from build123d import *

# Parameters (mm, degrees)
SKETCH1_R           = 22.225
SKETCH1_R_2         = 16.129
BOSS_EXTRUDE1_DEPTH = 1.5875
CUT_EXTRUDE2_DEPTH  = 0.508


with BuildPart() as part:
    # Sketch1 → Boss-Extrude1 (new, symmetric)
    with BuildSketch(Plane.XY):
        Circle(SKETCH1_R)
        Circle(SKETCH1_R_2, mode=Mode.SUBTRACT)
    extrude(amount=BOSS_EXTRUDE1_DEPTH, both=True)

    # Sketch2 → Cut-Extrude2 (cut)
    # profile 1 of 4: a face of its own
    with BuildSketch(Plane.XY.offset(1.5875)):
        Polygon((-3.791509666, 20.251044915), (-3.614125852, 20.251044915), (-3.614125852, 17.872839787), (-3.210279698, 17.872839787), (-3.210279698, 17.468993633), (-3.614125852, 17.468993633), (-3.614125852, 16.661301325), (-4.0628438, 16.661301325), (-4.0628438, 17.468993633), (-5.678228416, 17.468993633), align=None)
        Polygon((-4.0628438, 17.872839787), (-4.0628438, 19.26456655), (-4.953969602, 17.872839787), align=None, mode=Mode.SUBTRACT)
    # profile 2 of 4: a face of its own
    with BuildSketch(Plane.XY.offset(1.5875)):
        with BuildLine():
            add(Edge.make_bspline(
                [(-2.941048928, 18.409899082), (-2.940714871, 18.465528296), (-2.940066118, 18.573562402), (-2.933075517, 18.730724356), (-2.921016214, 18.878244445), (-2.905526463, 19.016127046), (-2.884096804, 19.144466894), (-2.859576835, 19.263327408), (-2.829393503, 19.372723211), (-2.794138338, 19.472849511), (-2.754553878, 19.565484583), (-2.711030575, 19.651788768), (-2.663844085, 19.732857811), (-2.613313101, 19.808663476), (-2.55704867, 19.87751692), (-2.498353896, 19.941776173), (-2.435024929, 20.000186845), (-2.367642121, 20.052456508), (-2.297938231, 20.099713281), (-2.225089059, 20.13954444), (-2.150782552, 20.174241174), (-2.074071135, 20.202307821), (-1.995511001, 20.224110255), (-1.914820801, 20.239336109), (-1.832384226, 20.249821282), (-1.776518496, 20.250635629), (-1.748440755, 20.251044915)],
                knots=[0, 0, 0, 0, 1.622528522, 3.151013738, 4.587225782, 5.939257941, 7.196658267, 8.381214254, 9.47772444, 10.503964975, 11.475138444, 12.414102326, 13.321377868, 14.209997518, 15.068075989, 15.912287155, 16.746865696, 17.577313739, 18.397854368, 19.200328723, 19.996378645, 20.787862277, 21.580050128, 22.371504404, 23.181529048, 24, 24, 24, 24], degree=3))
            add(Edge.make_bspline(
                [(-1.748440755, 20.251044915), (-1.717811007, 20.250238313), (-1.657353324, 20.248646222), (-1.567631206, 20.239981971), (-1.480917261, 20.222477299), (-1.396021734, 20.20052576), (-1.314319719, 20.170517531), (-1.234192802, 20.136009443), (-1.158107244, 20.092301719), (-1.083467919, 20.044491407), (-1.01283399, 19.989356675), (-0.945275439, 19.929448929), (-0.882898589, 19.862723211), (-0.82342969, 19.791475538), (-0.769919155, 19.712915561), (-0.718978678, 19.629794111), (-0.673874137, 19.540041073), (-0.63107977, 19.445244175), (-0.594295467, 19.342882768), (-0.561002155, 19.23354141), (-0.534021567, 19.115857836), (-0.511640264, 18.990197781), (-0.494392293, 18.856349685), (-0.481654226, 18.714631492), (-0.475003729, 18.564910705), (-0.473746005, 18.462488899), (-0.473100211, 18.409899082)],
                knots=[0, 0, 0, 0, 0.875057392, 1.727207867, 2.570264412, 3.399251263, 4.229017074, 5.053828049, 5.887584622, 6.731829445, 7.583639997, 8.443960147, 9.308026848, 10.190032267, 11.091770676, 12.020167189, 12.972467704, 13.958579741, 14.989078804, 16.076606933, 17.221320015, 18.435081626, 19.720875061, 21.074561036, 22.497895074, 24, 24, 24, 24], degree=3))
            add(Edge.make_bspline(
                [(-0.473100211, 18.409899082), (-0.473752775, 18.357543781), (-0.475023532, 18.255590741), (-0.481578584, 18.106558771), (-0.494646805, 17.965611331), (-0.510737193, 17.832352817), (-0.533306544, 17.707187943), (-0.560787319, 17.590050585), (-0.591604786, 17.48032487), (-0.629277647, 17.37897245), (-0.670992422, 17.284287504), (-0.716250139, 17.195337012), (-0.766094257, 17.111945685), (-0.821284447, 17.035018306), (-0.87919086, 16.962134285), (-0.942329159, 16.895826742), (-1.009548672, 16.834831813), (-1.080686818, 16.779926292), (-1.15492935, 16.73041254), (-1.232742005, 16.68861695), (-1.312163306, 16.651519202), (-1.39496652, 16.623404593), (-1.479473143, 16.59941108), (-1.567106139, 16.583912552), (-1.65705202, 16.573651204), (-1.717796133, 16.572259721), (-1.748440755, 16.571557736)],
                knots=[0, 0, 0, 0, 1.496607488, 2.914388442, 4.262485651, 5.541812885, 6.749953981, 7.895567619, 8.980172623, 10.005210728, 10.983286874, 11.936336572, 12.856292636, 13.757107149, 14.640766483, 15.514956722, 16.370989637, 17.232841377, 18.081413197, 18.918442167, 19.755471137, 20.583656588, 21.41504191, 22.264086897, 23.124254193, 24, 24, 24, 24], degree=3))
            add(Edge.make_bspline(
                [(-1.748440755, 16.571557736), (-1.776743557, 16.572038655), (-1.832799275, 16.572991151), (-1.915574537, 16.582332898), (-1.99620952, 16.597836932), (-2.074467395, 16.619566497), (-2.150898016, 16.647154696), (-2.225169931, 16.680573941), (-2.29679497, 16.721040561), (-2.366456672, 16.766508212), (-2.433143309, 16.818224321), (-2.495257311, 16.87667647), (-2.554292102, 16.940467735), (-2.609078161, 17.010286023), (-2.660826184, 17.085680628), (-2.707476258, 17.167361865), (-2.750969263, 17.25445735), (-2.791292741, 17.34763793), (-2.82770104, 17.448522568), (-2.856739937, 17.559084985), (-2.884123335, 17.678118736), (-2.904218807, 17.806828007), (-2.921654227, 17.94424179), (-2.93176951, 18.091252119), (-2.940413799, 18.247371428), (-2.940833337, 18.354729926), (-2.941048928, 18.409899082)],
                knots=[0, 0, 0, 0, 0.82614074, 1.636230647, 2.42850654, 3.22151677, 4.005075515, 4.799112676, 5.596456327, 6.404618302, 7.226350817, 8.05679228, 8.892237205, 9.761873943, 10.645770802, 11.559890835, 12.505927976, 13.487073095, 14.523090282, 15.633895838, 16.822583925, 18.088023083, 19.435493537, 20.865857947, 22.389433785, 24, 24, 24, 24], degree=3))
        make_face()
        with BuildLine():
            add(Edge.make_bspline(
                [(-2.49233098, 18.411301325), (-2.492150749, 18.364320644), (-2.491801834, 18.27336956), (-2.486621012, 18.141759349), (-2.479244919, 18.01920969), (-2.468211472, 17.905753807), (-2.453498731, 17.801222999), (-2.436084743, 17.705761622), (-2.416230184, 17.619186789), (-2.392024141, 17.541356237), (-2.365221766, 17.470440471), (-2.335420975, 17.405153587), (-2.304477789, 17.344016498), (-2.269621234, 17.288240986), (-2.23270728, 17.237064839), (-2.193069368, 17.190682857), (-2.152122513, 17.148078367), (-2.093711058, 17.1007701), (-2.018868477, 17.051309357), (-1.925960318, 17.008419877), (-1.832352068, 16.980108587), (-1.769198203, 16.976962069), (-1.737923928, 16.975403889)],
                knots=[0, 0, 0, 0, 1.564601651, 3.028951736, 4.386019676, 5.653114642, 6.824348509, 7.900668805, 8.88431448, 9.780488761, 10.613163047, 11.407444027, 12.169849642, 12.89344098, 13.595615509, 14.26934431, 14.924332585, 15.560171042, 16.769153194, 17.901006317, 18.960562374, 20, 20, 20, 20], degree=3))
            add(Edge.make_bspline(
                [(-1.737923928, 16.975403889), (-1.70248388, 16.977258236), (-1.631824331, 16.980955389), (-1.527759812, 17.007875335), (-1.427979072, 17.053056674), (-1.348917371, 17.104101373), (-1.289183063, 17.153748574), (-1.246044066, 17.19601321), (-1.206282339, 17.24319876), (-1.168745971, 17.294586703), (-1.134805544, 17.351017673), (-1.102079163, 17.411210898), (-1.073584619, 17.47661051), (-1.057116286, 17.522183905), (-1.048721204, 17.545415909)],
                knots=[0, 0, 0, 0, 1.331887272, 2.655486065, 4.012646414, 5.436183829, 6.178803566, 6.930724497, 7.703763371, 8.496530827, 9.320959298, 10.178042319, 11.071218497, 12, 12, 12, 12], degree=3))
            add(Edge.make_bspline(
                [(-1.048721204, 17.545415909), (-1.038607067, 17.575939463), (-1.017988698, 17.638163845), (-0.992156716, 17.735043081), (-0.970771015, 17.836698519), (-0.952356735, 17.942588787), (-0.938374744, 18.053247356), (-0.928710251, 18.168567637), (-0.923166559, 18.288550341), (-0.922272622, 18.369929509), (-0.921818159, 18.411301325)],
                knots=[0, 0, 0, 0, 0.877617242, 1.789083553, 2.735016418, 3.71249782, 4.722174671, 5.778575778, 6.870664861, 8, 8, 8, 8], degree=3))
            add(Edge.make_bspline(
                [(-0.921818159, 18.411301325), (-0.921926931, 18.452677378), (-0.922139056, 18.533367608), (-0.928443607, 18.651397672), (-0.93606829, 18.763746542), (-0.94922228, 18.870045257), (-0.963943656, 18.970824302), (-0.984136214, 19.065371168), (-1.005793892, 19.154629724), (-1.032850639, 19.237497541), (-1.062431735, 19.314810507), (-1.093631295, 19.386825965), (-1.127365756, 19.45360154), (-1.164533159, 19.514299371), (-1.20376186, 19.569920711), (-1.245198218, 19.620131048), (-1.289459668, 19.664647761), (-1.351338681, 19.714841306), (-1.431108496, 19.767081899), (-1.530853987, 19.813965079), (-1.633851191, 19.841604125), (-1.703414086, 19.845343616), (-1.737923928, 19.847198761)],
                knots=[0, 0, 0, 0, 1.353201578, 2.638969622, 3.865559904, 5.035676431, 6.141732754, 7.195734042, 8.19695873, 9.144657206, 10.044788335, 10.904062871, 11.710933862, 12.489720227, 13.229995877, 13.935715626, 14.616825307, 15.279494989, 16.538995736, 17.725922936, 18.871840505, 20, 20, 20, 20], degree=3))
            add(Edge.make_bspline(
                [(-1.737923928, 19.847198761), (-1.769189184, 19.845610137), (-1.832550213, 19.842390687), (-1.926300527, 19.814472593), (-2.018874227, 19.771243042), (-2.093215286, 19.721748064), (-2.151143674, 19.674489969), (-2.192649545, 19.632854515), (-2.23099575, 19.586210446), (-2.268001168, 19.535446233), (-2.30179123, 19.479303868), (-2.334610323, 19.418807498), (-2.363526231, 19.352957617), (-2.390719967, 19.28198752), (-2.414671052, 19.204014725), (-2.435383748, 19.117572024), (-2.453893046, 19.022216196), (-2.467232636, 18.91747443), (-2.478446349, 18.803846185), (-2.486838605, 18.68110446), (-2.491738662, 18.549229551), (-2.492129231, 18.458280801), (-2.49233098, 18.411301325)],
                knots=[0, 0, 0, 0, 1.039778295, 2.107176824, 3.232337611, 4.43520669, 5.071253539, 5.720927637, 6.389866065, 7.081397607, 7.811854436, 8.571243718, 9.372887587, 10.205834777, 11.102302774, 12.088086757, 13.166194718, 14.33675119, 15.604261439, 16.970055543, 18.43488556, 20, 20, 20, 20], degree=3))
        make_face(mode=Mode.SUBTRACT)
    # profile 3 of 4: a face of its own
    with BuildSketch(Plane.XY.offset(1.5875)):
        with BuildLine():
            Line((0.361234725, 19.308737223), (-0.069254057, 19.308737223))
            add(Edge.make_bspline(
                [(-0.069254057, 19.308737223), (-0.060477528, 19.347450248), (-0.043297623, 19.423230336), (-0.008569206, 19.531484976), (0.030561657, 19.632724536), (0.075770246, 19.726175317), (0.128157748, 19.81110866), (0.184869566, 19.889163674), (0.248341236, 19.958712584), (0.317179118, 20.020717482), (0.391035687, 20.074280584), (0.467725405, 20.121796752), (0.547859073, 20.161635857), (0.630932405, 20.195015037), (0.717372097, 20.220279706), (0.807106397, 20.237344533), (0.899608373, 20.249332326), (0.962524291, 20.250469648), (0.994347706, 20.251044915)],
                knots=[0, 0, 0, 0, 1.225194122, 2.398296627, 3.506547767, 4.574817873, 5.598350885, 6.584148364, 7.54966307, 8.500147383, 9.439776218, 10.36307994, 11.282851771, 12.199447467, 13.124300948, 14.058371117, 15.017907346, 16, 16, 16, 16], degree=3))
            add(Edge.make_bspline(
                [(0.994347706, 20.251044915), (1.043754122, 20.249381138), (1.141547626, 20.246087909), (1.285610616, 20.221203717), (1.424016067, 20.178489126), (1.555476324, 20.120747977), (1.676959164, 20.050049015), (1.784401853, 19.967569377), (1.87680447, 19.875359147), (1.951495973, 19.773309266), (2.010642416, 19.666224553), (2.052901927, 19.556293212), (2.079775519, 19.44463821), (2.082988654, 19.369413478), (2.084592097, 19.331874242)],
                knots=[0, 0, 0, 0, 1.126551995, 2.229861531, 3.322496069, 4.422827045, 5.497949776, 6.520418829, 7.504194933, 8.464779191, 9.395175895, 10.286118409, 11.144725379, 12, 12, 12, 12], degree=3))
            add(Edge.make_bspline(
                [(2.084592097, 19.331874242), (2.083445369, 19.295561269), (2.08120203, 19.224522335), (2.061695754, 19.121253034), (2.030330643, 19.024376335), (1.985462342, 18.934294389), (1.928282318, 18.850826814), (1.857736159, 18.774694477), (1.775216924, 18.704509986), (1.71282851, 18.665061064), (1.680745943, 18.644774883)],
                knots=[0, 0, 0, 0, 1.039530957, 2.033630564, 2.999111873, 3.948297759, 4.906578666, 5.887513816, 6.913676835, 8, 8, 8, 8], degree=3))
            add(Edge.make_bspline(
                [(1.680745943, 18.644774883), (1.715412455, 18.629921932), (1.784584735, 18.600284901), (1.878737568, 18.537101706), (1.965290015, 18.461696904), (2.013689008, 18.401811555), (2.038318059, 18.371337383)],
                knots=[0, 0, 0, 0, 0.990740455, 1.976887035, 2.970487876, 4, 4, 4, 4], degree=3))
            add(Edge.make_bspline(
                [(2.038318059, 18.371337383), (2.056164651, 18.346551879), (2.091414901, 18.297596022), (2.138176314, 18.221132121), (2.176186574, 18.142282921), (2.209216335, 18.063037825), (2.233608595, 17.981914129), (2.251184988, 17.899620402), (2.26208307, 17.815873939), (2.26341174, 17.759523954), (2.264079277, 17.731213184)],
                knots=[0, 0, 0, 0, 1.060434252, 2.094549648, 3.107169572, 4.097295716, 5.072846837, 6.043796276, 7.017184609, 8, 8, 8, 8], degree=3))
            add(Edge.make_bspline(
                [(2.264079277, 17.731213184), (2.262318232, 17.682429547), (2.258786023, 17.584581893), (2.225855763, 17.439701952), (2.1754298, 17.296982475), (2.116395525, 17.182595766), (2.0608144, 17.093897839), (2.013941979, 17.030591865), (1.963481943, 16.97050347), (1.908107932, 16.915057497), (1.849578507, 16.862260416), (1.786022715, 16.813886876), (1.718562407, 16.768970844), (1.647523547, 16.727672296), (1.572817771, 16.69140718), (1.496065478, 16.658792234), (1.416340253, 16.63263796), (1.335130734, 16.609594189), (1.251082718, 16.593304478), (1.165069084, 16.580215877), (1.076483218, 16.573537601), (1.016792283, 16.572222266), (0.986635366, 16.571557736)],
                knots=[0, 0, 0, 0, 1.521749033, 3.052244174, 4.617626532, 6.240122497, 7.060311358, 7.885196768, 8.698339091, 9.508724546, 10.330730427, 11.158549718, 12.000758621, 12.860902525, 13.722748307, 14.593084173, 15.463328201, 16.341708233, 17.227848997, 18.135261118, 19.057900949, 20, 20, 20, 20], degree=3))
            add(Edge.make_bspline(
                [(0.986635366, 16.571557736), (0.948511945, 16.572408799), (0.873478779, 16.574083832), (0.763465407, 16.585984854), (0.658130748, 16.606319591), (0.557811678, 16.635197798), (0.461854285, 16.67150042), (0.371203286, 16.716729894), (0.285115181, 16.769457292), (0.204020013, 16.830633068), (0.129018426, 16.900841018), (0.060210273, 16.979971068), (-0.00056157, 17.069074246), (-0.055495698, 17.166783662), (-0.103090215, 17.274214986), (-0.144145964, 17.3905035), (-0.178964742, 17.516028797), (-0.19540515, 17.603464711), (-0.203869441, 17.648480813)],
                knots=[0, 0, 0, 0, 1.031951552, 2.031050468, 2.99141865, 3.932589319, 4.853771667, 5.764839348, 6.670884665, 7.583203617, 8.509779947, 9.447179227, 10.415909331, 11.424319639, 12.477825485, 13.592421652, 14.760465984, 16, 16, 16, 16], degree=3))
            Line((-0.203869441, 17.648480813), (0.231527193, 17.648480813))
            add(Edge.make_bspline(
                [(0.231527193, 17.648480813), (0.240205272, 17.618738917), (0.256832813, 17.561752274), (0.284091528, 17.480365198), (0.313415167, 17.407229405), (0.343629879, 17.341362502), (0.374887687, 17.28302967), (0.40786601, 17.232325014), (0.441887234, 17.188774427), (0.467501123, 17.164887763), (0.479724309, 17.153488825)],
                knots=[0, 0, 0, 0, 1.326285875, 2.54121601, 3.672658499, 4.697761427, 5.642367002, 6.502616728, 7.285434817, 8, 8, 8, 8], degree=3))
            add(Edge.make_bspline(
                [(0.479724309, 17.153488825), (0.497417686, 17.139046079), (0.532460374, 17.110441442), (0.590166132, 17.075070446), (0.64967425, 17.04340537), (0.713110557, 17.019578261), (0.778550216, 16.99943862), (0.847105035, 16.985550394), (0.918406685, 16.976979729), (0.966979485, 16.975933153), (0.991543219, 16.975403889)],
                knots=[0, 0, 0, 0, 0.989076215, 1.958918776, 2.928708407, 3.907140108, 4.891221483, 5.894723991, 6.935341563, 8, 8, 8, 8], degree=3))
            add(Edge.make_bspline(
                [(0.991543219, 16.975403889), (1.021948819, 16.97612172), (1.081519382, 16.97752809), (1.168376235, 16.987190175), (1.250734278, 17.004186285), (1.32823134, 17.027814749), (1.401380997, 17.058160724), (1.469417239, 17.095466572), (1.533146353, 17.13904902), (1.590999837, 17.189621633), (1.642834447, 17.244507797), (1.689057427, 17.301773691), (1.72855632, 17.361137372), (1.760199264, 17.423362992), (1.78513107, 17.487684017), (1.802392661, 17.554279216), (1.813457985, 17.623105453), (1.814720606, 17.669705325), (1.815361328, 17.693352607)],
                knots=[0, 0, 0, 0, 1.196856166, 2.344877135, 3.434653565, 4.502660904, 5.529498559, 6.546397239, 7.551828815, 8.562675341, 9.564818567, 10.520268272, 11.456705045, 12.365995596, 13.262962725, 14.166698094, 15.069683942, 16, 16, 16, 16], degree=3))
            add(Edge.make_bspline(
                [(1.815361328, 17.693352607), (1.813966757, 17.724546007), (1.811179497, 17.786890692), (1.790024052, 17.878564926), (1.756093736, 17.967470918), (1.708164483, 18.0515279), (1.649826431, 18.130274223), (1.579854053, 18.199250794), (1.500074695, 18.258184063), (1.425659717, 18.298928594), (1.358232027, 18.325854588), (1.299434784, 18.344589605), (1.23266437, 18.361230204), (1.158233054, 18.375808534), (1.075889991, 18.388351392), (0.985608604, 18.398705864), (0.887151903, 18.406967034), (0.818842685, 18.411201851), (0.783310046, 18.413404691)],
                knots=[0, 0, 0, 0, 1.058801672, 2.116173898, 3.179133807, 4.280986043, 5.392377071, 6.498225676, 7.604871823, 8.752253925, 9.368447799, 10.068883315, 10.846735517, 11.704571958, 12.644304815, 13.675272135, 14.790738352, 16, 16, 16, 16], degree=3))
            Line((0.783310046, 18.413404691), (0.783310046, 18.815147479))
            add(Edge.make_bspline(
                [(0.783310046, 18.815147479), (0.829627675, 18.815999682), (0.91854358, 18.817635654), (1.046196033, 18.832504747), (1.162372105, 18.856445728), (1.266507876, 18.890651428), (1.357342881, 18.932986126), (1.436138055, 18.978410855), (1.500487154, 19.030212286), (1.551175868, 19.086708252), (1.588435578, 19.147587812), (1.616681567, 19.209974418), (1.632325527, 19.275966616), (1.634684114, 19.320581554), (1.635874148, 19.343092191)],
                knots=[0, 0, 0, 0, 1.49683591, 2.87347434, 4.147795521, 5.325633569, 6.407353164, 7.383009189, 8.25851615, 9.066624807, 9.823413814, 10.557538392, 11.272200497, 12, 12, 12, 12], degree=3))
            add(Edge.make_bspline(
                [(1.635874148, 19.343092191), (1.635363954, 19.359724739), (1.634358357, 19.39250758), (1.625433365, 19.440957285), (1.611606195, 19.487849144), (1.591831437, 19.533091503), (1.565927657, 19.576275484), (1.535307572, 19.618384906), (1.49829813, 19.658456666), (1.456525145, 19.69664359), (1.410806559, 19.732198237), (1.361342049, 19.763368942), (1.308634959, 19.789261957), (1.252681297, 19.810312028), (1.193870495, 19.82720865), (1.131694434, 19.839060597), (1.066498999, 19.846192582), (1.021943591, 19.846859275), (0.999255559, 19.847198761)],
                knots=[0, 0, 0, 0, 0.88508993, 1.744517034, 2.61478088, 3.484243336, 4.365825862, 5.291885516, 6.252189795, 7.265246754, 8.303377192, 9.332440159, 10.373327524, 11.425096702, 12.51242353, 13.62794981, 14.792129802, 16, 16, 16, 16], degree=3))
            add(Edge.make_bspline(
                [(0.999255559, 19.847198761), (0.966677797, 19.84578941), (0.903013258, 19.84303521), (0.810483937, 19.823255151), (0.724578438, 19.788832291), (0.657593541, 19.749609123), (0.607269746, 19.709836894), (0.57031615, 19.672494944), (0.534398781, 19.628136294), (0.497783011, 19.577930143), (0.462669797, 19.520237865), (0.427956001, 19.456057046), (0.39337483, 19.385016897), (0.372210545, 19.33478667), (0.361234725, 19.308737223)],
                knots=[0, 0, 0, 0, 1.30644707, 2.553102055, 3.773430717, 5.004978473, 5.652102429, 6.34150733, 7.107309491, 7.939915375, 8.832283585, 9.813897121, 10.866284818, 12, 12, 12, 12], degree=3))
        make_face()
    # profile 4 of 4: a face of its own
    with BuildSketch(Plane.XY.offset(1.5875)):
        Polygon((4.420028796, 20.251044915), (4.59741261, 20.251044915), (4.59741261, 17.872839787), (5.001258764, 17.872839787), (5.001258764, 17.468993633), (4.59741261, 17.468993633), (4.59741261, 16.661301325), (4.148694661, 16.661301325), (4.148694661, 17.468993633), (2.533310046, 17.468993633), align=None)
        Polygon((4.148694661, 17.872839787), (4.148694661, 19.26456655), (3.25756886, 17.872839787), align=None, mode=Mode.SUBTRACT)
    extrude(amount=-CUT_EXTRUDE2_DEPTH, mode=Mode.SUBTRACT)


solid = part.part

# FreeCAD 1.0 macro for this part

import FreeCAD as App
import Part
import Sketcher

V = App.Vector
Q = App.Units.Quantity


def add_polygon(sketch, points):
    """Adds a closed chain of lines whose ends are joined by coincident constraints."""
    first, n = sketch.GeometryCount, len(points)
    for a, b in zip(points, points[1:] + points[:1]):
        sketch.addGeometry(Part.LineSegment(App.Vector(*a, 0), App.Vector(*b, 0)), False)
    for i in range(n):
        sketch.addConstraint(Sketcher.Constraint("Coincident", first + i, 2, first + (i + 1) % n, 1))

doc = App.newDocument("Part")
params = doc.addObject("Spreadsheet::Sheet", "Params")
for row, (alias, value) in enumerate([
    ("sketch1_diameter", "1.75 in"),
    ("sketch1_diameter2", "1.27 in"),
    ("pad1_length", "0.125 in"),
    ("pocket1_length", "0.02 in"),
], start=1):
    params.set(f"A{row}", alias)
    params.set(f"B{row}", "=" + value)
    params.setAlias(f"B{row}", alias)

body = doc.addObject("PartDesign::Body", "Body")

# Sketch on XY plane
sketch1 = body.newObject("Sketcher::SketchObject", "Sketch")
sketch1.AttachmentSupport = (doc.getObject("XY_Plane"), [""])
sketch1.MapMode = "FlatFace"
sketch1.addGeometry([
    Part.Circle(V(0, 0, 0), V(0, 0, 1), 22.225),
    Part.Circle(V(0, 0, 0), V(0, 0, 1), 16.129),
], False)
sketch1.addConstraint([
    Sketcher.Constraint("Coincident", 0, 3, -1, 1),
    Sketcher.Constraint("Coincident", 1, 3, -1, 1),
    Sketcher.Constraint("Diameter", 0, Q("1.75 in")),
    Sketcher.Constraint("Diameter", 1, Q("1.27 in")),
])
sketch1.setExpression("Constraints[2]", "Params.sketch1_diameter")
sketch1.setExpression("Constraints[3]", "Params.sketch1_diameter2")
pad1 = body.newObject("PartDesign::Pad", "Pad")
pad1.Profile = sketch1
pad1.setExpression("Length", "Params.pad1_length")
pad1.Midplane = True

# Sketch on XY plane
sketch2 = body.newObject("Sketcher::SketchObject", "Sketch001")
sketch2.AttachmentSupport = (doc.getObject("XY_Plane"), [""])
sketch2.MapMode = "FlatFace"
sketch2.AttachmentOffset = App.Placement(V(0, 0, 0.0625 * 25.4), App.Rotation())
add_polygon(sketch2, [(-3.614126, 20.251045), (-3.79151, 20.251045), (-5.678228, 17.468994), (-4.062844, 17.468994), (-4.062844, 16.661301), (-3.614126, 16.661301), (-3.614126, 17.468994), (-3.21028, 17.468994), (-3.21028, 17.87284), (-3.614126, 17.87284)])  # lines 0-9
add_polygon(sketch2, [(-4.062844, 17.87284), (-4.95397, 17.87284), (-4.062844, 19.264567)])  # lines 10-12
sketch2.addGeometry(Part.BSplineCurve([V(-2.941049, 18.409899, 0), V(-2.940715, 18.465528, 0), V(-2.940066, 18.573562, 0), V(-2.933076, 18.730724, 0), V(-2.921016, 18.878244, 0), V(-2.905526, 19.016127, 0), V(-2.884097, 19.144467, 0), V(-2.859577, 19.263327, 0), V(-2.829394, 19.372723, 0), V(-2.794138, 19.47285, 0), V(-2.754554, 19.565485, 0), V(-2.711031, 19.651789, 0), V(-2.663844, 19.732858, 0), V(-2.613313, 19.808663, 0), V(-2.557049, 19.877517, 0), V(-2.498354, 19.941776, 0), V(-2.435025, 20.000187, 0), V(-2.367642, 20.052457, 0), V(-2.297938, 20.099713, 0), V(-2.225089, 20.139544, 0), V(-2.150783, 20.174241, 0), V(-2.074071, 20.202308, 0), V(-1.995511, 20.22411, 0), V(-1.914821, 20.239336, 0), V(-1.832384, 20.249821, 0), V(-1.776518, 20.250636, 0), V(-1.748441, 20.251045, 0)], [4, 1, 1, 1, 1, 1, 1, 1, 1, 1, 1, 1, 1, 1, 1, 1, 1, 1, 1, 1, 1, 1, 1, 1, 4], [0, 1.622528522, 3.151013738, 4.587225782, 5.939257941, 7.196658267, 8.381214254, 9.47772444, 10.503964975, 11.475138444, 12.414102326, 13.321377868, 14.209997518, 15.068075989, 15.912287155, 16.746865696, 17.577313739, 18.397854368, 19.200328723, 19.996378645, 20.787862277, 21.580050128, 22.371504404, 23.181529048, 24], False, 3, [1, 1, 1, 1, 1, 1, 1, 1, 1, 1, 1, 1, 1, 1, 1, 1, 1, 1, 1, 1, 1, 1, 1, 1, 1, 1, 1], False), False)  # 13
sketch2.addGeometry(Part.BSplineCurve([V(-1.748441, 16.571558, 0), V(-1.776744, 16.572039, 0), V(-1.832799, 16.572991, 0), V(-1.915575, 16.582333, 0), V(-1.99621, 16.597837, 0), V(-2.074467, 16.619566, 0), V(-2.150898, 16.647155, 0), V(-2.22517, 16.680574, 0), V(-2.296795, 16.721041, 0), V(-2.366457, 16.766508, 0), V(-2.433143, 16.818224, 0), V(-2.495257, 16.876676, 0), V(-2.554292, 16.940468, 0), V(-2.609078, 17.010286, 0), V(-2.660826, 17.085681, 0), V(-2.707476, 17.167362, 0), V(-2.750969, 17.254457, 0), V(-2.791293, 17.347638, 0), V(-2.827701, 17.448523, 0), V(-2.85674, 17.559085, 0), V(-2.884123, 17.678119, 0), V(-2.904219, 17.806828, 0), V(-2.921654, 17.944242, 0), V(-2.93177, 18.091252, 0), V(-2.940414, 18.247371, 0), V(-2.940833, 18.35473, 0), V(-2.941049, 18.409899, 0)], [4, 1, 1, 1, 1, 1, 1, 1, 1, 1, 1, 1, 1, 1, 1, 1, 1, 1, 1, 1, 1, 1, 1, 1, 4], [0, 0.82614074, 1.636230647, 2.42850654, 3.22151677, 4.005075515, 4.799112676, 5.596456327, 6.404618302, 7.226350817, 8.05679228, 8.892237205, 9.761873943, 10.645770802, 11.559890835, 12.505927976, 13.487073095, 14.523090282, 15.633895838, 16.822583925, 18.088023083, 19.435493537, 20.865857947, 22.389433785, 24], False, 3, [1, 1, 1, 1, 1, 1, 1, 1, 1, 1, 1, 1, 1, 1, 1, 1, 1, 1, 1, 1, 1, 1, 1, 1, 1, 1, 1], False), False)  # 14
sketch2.addGeometry(Part.BSplineCurve([V(-0.4731, 18.409899, 0), V(-0.473753, 18.357544, 0), V(-0.475024, 18.255591, 0), V(-0.481579, 18.106559, 0), V(-0.494647, 17.965611, 0), V(-0.510737, 17.832353, 0), V(-0.533307, 17.707188, 0), V(-0.560787, 17.590051, 0), V(-0.591605, 17.480325, 0), V(-0.629278, 17.378972, 0), V(-0.670992, 17.284288, 0), V(-0.71625, 17.195337, 0), V(-0.766094, 17.111946, 0), V(-0.821284, 17.035018, 0), V(-0.879191, 16.962134, 0), V(-0.942329, 16.895827, 0), V(-1.009549, 16.834832, 0), V(-1.080687, 16.779926, 0), V(-1.154929, 16.730413, 0), V(-1.232742, 16.688617, 0), V(-1.312163, 16.651519, 0), V(-1.394967, 16.623405, 0), V(-1.479473, 16.599411, 0), V(-1.567106, 16.583913, 0), V(-1.657052, 16.573651, 0), V(-1.717796, 16.57226, 0), V(-1.748441, 16.571558, 0)], [4, 1, 1, 1, 1, 1, 1, 1, 1, 1, 1, 1, 1, 1, 1, 1, 1, 1, 1, 1, 1, 1, 1, 1, 4], [0, 1.496607488, 2.914388442, 4.262485651, 5.541812885, 6.749953981, 7.895567619, 8.980172623, 10.005210728, 10.983286874, 11.936336572, 12.856292636, 13.757107149, 14.640766483, 15.514956722, 16.370989637, 17.232841377, 18.081413197, 18.918442167, 19.755471137, 20.583656588, 21.41504191, 22.264086897, 23.124254193, 24], False, 3, [1, 1, 1, 1, 1, 1, 1, 1, 1, 1, 1, 1, 1, 1, 1, 1, 1, 1, 1, 1, 1, 1, 1, 1, 1, 1, 1], False), False)  # 15
sketch2.addGeometry(Part.BSplineCurve([V(-1.748441, 20.251045, 0), V(-1.717811, 20.250238, 0), V(-1.657353, 20.248646, 0), V(-1.567631, 20.239982, 0), V(-1.480917, 20.222477, 0), V(-1.396022, 20.200526, 0), V(-1.31432, 20.170518, 0), V(-1.234193, 20.136009, 0), V(-1.158107, 20.092302, 0), V(-1.083468, 20.044491, 0), V(-1.012834, 19.989357, 0), V(-0.945275, 19.929449, 0), V(-0.882899, 19.862723, 0), V(-0.82343, 19.791476, 0), V(-0.769919, 19.712916, 0), V(-0.718979, 19.629794, 0), V(-0.673874, 19.540041, 0), V(-0.63108, 19.445244, 0), V(-0.594295, 19.342883, 0), V(-0.561002, 19.233541, 0), V(-0.534022, 19.115858, 0), V(-0.51164, 18.990198, 0), V(-0.494392, 18.85635, 0), V(-0.481654, 18.714631, 0), V(-0.475004, 18.564911, 0), V(-0.473746, 18.462489, 0), V(-0.4731, 18.409899, 0)], [4, 1, 1, 1, 1, 1, 1, 1, 1, 1, 1, 1, 1, 1, 1, 1, 1, 1, 1, 1, 1, 1, 1, 1, 4], [0, 0.875057392, 1.727207867, 2.570264412, 3.399251263, 4.229017074, 5.053828049, 5.887584622, 6.731829445, 7.583639997, 8.443960147, 9.308026848, 10.190032267, 11.091770676, 12.020167189, 12.972467704, 13.958579741, 14.989078804, 16.076606933, 17.221320015, 18.435081626, 19.720875061, 21.074561036, 22.497895074, 24], False, 3, [1, 1, 1, 1, 1, 1, 1, 1, 1, 1, 1, 1, 1, 1, 1, 1, 1, 1, 1, 1, 1, 1, 1, 1, 1, 1, 1], False), False)  # 16
sketch2.addGeometry(Part.BSplineCurve([V(-1.737924, 19.847199, 0), V(-1.769189, 19.84561, 0), V(-1.83255, 19.842391, 0), V(-1.926301, 19.814473, 0), V(-2.018874, 19.771243, 0), V(-2.093215, 19.721748, 0), V(-2.151144, 19.67449, 0), V(-2.19265, 19.632855, 0), V(-2.230996, 19.58621, 0), V(-2.268001, 19.535446, 0), V(-2.301791, 19.479304, 0), V(-2.33461, 19.418807, 0), V(-2.363526, 19.352958, 0), V(-2.39072, 19.281988, 0), V(-2.414671, 19.204015, 0), V(-2.435384, 19.117572, 0), V(-2.453893, 19.022216, 0), V(-2.467233, 18.917474, 0), V(-2.478446, 18.803846, 0), V(-2.486839, 18.681104, 0), V(-2.491739, 18.54923, 0), V(-2.492129, 18.458281, 0), V(-2.492331, 18.411301, 0)], [4, 1, 1, 1, 1, 1, 1, 1, 1, 1, 1, 1, 1, 1, 1, 1, 1, 1, 1, 1, 4], [0, 1.039778295, 2.107176824, 3.232337611, 4.43520669, 5.071253539, 5.720927637, 6.389866065, 7.081397607, 7.811854436, 8.571243718, 9.372887587, 10.205834777, 11.102302774, 12.088086757, 13.166194718, 14.33675119, 15.604261439, 16.970055543, 18.43488556, 20], False, 3, [1, 1, 1, 1, 1, 1, 1, 1, 1, 1, 1, 1, 1, 1, 1, 1, 1, 1, 1, 1, 1, 1, 1], False), False)  # 17
sketch2.addGeometry(Part.BSplineCurve([V(-0.921818, 18.411301, 0), V(-0.921927, 18.452677, 0), V(-0.922139, 18.533368, 0), V(-0.928444, 18.651398, 0), V(-0.936068, 18.763747, 0), V(-0.949222, 18.870045, 0), V(-0.963944, 18.970824, 0), V(-0.984136, 19.065371, 0), V(-1.005794, 19.15463, 0), V(-1.032851, 19.237498, 0), V(-1.062432, 19.314811, 0), V(-1.093631, 19.386826, 0), V(-1.127366, 19.453602, 0), V(-1.164533, 19.514299, 0), V(-1.203762, 19.569921, 0), V(-1.245198, 19.620131, 0), V(-1.28946, 19.664648, 0), V(-1.351339, 19.714841, 0), V(-1.431108, 19.767082, 0), V(-1.530854, 19.813965, 0), V(-1.633851, 19.841604, 0), V(-1.703414, 19.845344, 0), V(-1.737924, 19.847199, 0)], [4, 1, 1, 1, 1, 1, 1, 1, 1, 1, 1, 1, 1, 1, 1, 1, 1, 1, 1, 1, 4], [0, 1.353201578, 2.638969622, 3.865559904, 5.035676431, 6.141732754, 7.195734042, 8.19695873, 9.144657206, 10.044788335, 10.904062871, 11.710933862, 12.489720227, 13.229995877, 13.935715626, 14.616825307, 15.279494989, 16.538995736, 17.725922936, 18.871840505, 20], False, 3, [1, 1, 1, 1, 1, 1, 1, 1, 1, 1, 1, 1, 1, 1, 1, 1, 1, 1, 1, 1, 1, 1, 1], False), False)  # 18
sketch2.addGeometry(Part.BSplineCurve([V(-1.048721, 17.545416, 0), V(-1.038607, 17.575939, 0), V(-1.017989, 17.638164, 0), V(-0.992157, 17.735043, 0), V(-0.970771, 17.836699, 0), V(-0.952357, 17.942589, 0), V(-0.938375, 18.053247, 0), V(-0.92871, 18.168568, 0), V(-0.923167, 18.28855, 0), V(-0.922273, 18.36993, 0), V(-0.921818, 18.411301, 0)], [4, 1, 1, 1, 1, 1, 1, 1, 4], [0, 0.877617242, 1.789083553, 2.735016418, 3.71249782, 4.722174671, 5.778575778, 6.870664861, 8], False, 3, [1, 1, 1, 1, 1, 1, 1, 1, 1, 1, 1], False), False)  # 19
sketch2.addGeometry(Part.BSplineCurve([V(-1.737924, 16.975404, 0), V(-1.702484, 16.977258, 0), V(-1.631824, 16.980955, 0), V(-1.52776, 17.007875, 0), V(-1.427979, 17.053057, 0), V(-1.348917, 17.104101, 0), V(-1.289183, 17.153749, 0), V(-1.246044, 17.196013, 0), V(-1.206282, 17.243199, 0), V(-1.168746, 17.294587, 0), V(-1.134806, 17.351018, 0), V(-1.102079, 17.411211, 0), V(-1.073585, 17.476611, 0), V(-1.057116, 17.522184, 0), V(-1.048721, 17.545416, 0)], [4, 1, 1, 1, 1, 1, 1, 1, 1, 1, 1, 1, 4], [0, 1.331887272, 2.655486065, 4.012646414, 5.436183829, 6.178803566, 6.930724497, 7.703763371, 8.496530827, 9.320959298, 10.178042319, 11.071218497, 12], False, 3, [1, 1, 1, 1, 1, 1, 1, 1, 1, 1, 1, 1, 1, 1, 1], False), False)  # 20
sketch2.addGeometry(Part.BSplineCurve([V(-2.492331, 18.411301, 0), V(-2.492151, 18.364321, 0), V(-2.491802, 18.27337, 0), V(-2.486621, 18.141759, 0), V(-2.479245, 18.01921, 0), V(-2.468211, 17.905754, 0), V(-2.453499, 17.801223, 0), V(-2.436085, 17.705762, 0), V(-2.41623, 17.619187, 0), V(-2.392024, 17.541356, 0), V(-2.365222, 17.47044, 0), V(-2.335421, 17.405154, 0), V(-2.304478, 17.344016, 0), V(-2.269621, 17.288241, 0), V(-2.232707, 17.237065, 0), V(-2.193069, 17.190683, 0), V(-2.152123, 17.148078, 0), V(-2.093711, 17.10077, 0), V(-2.018868, 17.051309, 0), V(-1.92596, 17.00842, 0), V(-1.832352, 16.980109, 0), V(-1.769198, 16.976962, 0), V(-1.737924, 16.975404, 0)], [4, 1, 1, 1, 1, 1, 1, 1, 1, 1, 1, 1, 1, 1, 1, 1, 1, 1, 1, 1, 4], [0, 1.564601651, 3.028951736, 4.386019676, 5.653114642, 6.824348509, 7.900668805, 8.88431448, 9.780488761, 10.613163047, 11.407444027, 12.169849642, 12.89344098, 13.595615509, 14.26934431, 14.924332585, 15.560171042, 16.769153194, 17.901006317, 18.960562374, 20], False, 3, [1, 1, 1, 1, 1, 1, 1, 1, 1, 1, 1, 1, 1, 1, 1, 1, 1, 1, 1, 1, 1, 1, 1], False), False)  # 21
sketch2.addGeometry(Part.LineSegment(V(-0.069254, 19.308737, 0), V(0.361235, 19.308737, 0)), False)  # 22
sketch2.addGeometry(Part.BSplineCurve([V(0.999256, 19.847199, 0), V(0.966678, 19.845789, 0), V(0.903013, 19.843035, 0), V(0.810484, 19.823255, 0), V(0.724578, 19.788832, 0), V(0.657594, 19.749609, 0), V(0.60727, 19.709837, 0), V(0.570316, 19.672495, 0), V(0.534399, 19.628136, 0), V(0.497783, 19.57793, 0), V(0.46267, 19.520238, 0), V(0.427956, 19.456057, 0), V(0.393375, 19.385017, 0), V(0.372211, 19.334787, 0), V(0.361235, 19.308737, 0)], [4, 1, 1, 1, 1, 1, 1, 1, 1, 1, 1, 1, 4], [0, 1.30644707, 2.553102055, 3.773430717, 5.004978473, 5.652102429, 6.34150733, 7.107309491, 7.939915375, 8.832283585, 9.813897121, 10.866284818, 12], False, 3, [1, 1, 1, 1, 1, 1, 1, 1, 1, 1, 1, 1, 1, 1, 1], False), False)  # 23
sketch2.addGeometry(Part.BSplineCurve([V(1.635874, 19.343092, 0), V(1.635364, 19.359725, 0), V(1.634358, 19.392508, 0), V(1.625433, 19.440957, 0), V(1.611606, 19.487849, 0), V(1.591831, 19.533092, 0), V(1.565928, 19.576275, 0), V(1.535308, 19.618385, 0), V(1.498298, 19.658457, 0), V(1.456525, 19.696644, 0), V(1.410807, 19.732198, 0), V(1.361342, 19.763369, 0), V(1.308635, 19.789262, 0), V(1.252681, 19.810312, 0), V(1.19387, 19.827209, 0), V(1.131694, 19.839061, 0), V(1.066499, 19.846193, 0), V(1.021944, 19.846859, 0), V(0.999256, 19.847199, 0)], [4, 1, 1, 1, 1, 1, 1, 1, 1, 1, 1, 1, 1, 1, 1, 1, 4], [0, 0.88508993, 1.744517034, 2.61478088, 3.484243336, 4.365825862, 5.291885516, 6.252189795, 7.265246754, 8.303377192, 9.332440159, 10.373327524, 11.425096702, 12.51242353, 13.62794981, 14.792129802, 16], False, 3, [1, 1, 1, 1, 1, 1, 1, 1, 1, 1, 1, 1, 1, 1, 1, 1, 1, 1, 1], False), False)  # 24
sketch2.addGeometry(Part.BSplineCurve([V(0.78331, 18.815147, 0), V(0.829628, 18.816, 0), V(0.918544, 18.817636, 0), V(1.046196, 18.832505, 0), V(1.162372, 18.856446, 0), V(1.266508, 18.890651, 0), V(1.357343, 18.932986, 0), V(1.436138, 18.978411, 0), V(1.500487, 19.030212, 0), V(1.551176, 19.086708, 0), V(1.588436, 19.147588, 0), V(1.616682, 19.209974, 0), V(1.632326, 19.275967, 0), V(1.634684, 19.320582, 0), V(1.635874, 19.343092, 0)], [4, 1, 1, 1, 1, 1, 1, 1, 1, 1, 1, 1, 4], [0, 1.49683591, 2.87347434, 4.147795521, 5.325633569, 6.407353164, 7.383009189, 8.25851615, 9.066624807, 9.823413814, 10.557538392, 11.272200497, 12], False, 3, [1, 1, 1, 1, 1, 1, 1, 1, 1, 1, 1, 1, 1, 1, 1], False), False)  # 25
sketch2.addGeometry(Part.LineSegment(V(0.78331, 18.815147, 0), V(0.78331, 18.413405, 0)), False)  # 26
sketch2.addGeometry(Part.BSplineCurve([V(1.815361, 17.693353, 0), V(1.813967, 17.724546, 0), V(1.811179, 17.786891, 0), V(1.790024, 17.878565, 0), V(1.756094, 17.967471, 0), V(1.708164, 18.051528, 0), V(1.649826, 18.130274, 0), V(1.579854, 18.199251, 0), V(1.500075, 18.258184, 0), V(1.42566, 18.298929, 0), V(1.358232, 18.325855, 0), V(1.299435, 18.34459, 0), V(1.232664, 18.36123, 0), V(1.158233, 18.375809, 0), V(1.07589, 18.388351, 0), V(0.985609, 18.398706, 0), V(0.887152, 18.406967, 0), V(0.818843, 18.411202, 0), V(0.78331, 18.413405, 0)], [4, 1, 1, 1, 1, 1, 1, 1, 1, 1, 1, 1, 1, 1, 1, 1, 4], [0, 1.058801672, 2.116173898, 3.179133807, 4.280986043, 5.392377071, 6.498225676, 7.604871823, 8.752253925, 9.368447799, 10.068883315, 10.846735517, 11.704571958, 12.644304815, 13.675272135, 14.790738352, 16], False, 3, [1, 1, 1, 1, 1, 1, 1, 1, 1, 1, 1, 1, 1, 1, 1, 1, 1, 1, 1], False), False)  # 27
sketch2.addGeometry(Part.BSplineCurve([V(0.991543, 16.975404, 0), V(1.021949, 16.976122, 0), V(1.081519, 16.977528, 0), V(1.168376, 16.98719, 0), V(1.250734, 17.004186, 0), V(1.328231, 17.027815, 0), V(1.401381, 17.058161, 0), V(1.469417, 17.095467, 0), V(1.533146, 17.139049, 0), V(1.591, 17.189622, 0), V(1.642834, 17.244508, 0), V(1.689057, 17.301774, 0), V(1.728556, 17.361137, 0), V(1.760199, 17.423363, 0), V(1.785131, 17.487684, 0), V(1.802393, 17.554279, 0), V(1.813458, 17.623105, 0), V(1.814721, 17.669705, 0), V(1.815361, 17.693353, 0)], [4, 1, 1, 1, 1, 1, 1, 1, 1, 1, 1, 1, 1, 1, 1, 1, 4], [0, 1.196856166, 2.344877135, 3.434653565, 4.502660904, 5.529498559, 6.546397239, 7.551828815, 8.562675341, 9.564818567, 10.520268272, 11.456705045, 12.365995596, 13.262962725, 14.166698094, 15.069683942, 16], False, 3, [1, 1, 1, 1, 1, 1, 1, 1, 1, 1, 1, 1, 1, 1, 1, 1, 1, 1, 1], False), False)  # 28
sketch2.addGeometry(Part.BSplineCurve([V(0.479724, 17.153489, 0), V(0.497418, 17.139046, 0), V(0.53246, 17.110441, 0), V(0.590166, 17.07507, 0), V(0.649674, 17.043405, 0), V(0.713111, 17.019578, 0), V(0.77855, 16.999439, 0), V(0.847105, 16.98555, 0), V(0.918407, 16.97698, 0), V(0.966979, 16.975933, 0), V(0.991543, 16.975404, 0)], [4, 1, 1, 1, 1, 1, 1, 1, 4], [0, 0.989076215, 1.958918776, 2.928708407, 3.907140108, 4.891221483, 5.894723991, 6.935341563, 8], False, 3, [1, 1, 1, 1, 1, 1, 1, 1, 1, 1, 1], False), False)  # 29
sketch2.addGeometry(Part.BSplineCurve([V(0.231527, 17.648481, 0), V(0.240205, 17.618739, 0), V(0.256833, 17.561752, 0), V(0.284092, 17.480365, 0), V(0.313415, 17.407229, 0), V(0.34363, 17.341363, 0), V(0.374888, 17.28303, 0), V(0.407866, 17.232325, 0), V(0.441887, 17.188774, 0), V(0.467501, 17.164888, 0), V(0.479724, 17.153489, 0)], [4, 1, 1, 1, 1, 1, 1, 1, 4], [0, 1.326285875, 2.54121601, 3.672658499, 4.697761427, 5.642367002, 6.502616728, 7.285434817, 8], False, 3, [1, 1, 1, 1, 1, 1, 1, 1, 1, 1, 1], False), False)  # 30
sketch2.addGeometry(Part.LineSegment(V(0.231527, 17.648481, 0), V(-0.203869, 17.648481, 0)), False)  # 31
sketch2.addGeometry(Part.BSplineCurve([V(0.986635, 16.571558, 0), V(0.948512, 16.572409, 0), V(0.873479, 16.574084, 0), V(0.763465, 16.585985, 0), V(0.658131, 16.60632, 0), V(0.557812, 16.635198, 0), V(0.461854, 16.6715, 0), V(0.371203, 16.71673, 0), V(0.285115, 16.769457, 0), V(0.20402, 16.830633, 0), V(0.129018, 16.900841, 0), V(0.06021, 16.979971, 0), V(-0.000562, 17.069074, 0), V(-0.055496, 17.166784, 0), V(-0.10309, 17.274215, 0), V(-0.144146, 17.390504, 0), V(-0.178965, 17.516029, 0), V(-0.195405, 17.603465, 0), V(-0.203869, 17.648481, 0)], [4, 1, 1, 1, 1, 1, 1, 1, 1, 1, 1, 1, 1, 1, 1, 1, 4], [0, 1.031951552, 2.031050468, 2.99141865, 3.932589319, 4.853771667, 5.764839348, 6.670884665, 7.583203617, 8.509779947, 9.447179227, 10.415909331, 11.424319639, 12.477825485, 13.592421652, 14.760465984, 16], False, 3, [1, 1, 1, 1, 1, 1, 1, 1, 1, 1, 1, 1, 1, 1, 1, 1, 1, 1, 1], False), False)  # 32
sketch2.addGeometry(Part.BSplineCurve([V(2.264079, 17.731213, 0), V(2.262318, 17.68243, 0), V(2.258786, 17.584582, 0), V(2.225856, 17.439702, 0), V(2.17543, 17.296982, 0), V(2.116396, 17.182596, 0), V(2.060814, 17.093898, 0), V(2.013942, 17.030592, 0), V(1.963482, 16.970503, 0), V(1.908108, 16.915057, 0), V(1.849579, 16.86226, 0), V(1.786023, 16.813887, 0), V(1.718562, 16.768971, 0), V(1.647524, 16.727672, 0), V(1.572818, 16.691407, 0), V(1.496065, 16.658792, 0), V(1.41634, 16.632638, 0), V(1.335131, 16.609594, 0), V(1.251083, 16.593304, 0), V(1.165069, 16.580216, 0), V(1.076483, 16.573538, 0), V(1.016792, 16.572222, 0), V(0.986635, 16.571558, 0)], [4, 1, 1, 1, 1, 1, 1, 1, 1, 1, 1, 1, 1, 1, 1, 1, 1, 1, 1, 1, 4], [0, 1.521749033, 3.052244174, 4.617626532, 6.240122497, 7.060311358, 7.885196768, 8.698339091, 9.508724546, 10.330730427, 11.158549718, 12.000758621, 12.860902525, 13.722748307, 14.593084173, 15.463328201, 16.341708233, 17.227848997, 18.135261118, 19.057900949, 20], False, 3, [1, 1, 1, 1, 1, 1, 1, 1, 1, 1, 1, 1, 1, 1, 1, 1, 1, 1, 1, 1, 1, 1, 1], False), False)  # 33
sketch2.addGeometry(Part.BSplineCurve([V(2.038318, 18.371337, 0), V(2.056165, 18.346552, 0), V(2.091415, 18.297596, 0), V(2.138176, 18.221132, 0), V(2.176187, 18.142283, 0), V(2.209216, 18.063038, 0), V(2.233609, 17.981914, 0), V(2.251185, 17.89962, 0), V(2.262083, 17.815874, 0), V(2.263412, 17.759524, 0), V(2.264079, 17.731213, 0)], [4, 1, 1, 1, 1, 1, 1, 1, 4], [0, 1.060434252, 2.094549648, 3.107169572, 4.097295716, 5.072846837, 6.043796276, 7.017184609, 8], False, 3, [1, 1, 1, 1, 1, 1, 1, 1, 1, 1, 1], False), False)  # 34
sketch2.addGeometry(Part.BSplineCurve([V(1.680746, 18.644775, 0), V(1.715412, 18.629922, 0), V(1.784585, 18.600285, 0), V(1.878738, 18.537102, 0), V(1.96529, 18.461697, 0), V(2.013689, 18.401812, 0), V(2.038318, 18.371337, 0)], [4, 1, 1, 1, 4], [0, 0.990740455, 1.976887035, 2.970487876, 4], False, 3, [1, 1, 1, 1, 1, 1, 1], False), False)  # 35
sketch2.addGeometry(Part.BSplineCurve([V(2.084592, 19.331874, 0), V(2.083445, 19.295561, 0), V(2.081202, 19.224522, 0), V(2.061696, 19.121253, 0), V(2.030331, 19.024376, 0), V(1.985462, 18.934294, 0), V(1.928282, 18.850827, 0), V(1.857736, 18.774694, 0), V(1.775217, 18.70451, 0), V(1.712829, 18.665061, 0), V(1.680746, 18.644775, 0)], [4, 1, 1, 1, 1, 1, 1, 1, 4], [0, 1.039530957, 2.033630564, 2.999111873, 3.948297759, 4.906578666, 5.887513816, 6.913676835, 8], False, 3, [1, 1, 1, 1, 1, 1, 1, 1, 1, 1, 1], False), False)  # 36
sketch2.addGeometry(Part.BSplineCurve([V(0.994348, 20.251045, 0), V(1.043754, 20.249381, 0), V(1.141548, 20.246088, 0), V(1.285611, 20.221204, 0), V(1.424016, 20.178489, 0), V(1.555476, 20.120748, 0), V(1.676959, 20.050049, 0), V(1.784402, 19.967569, 0), V(1.876804, 19.875359, 0), V(1.951496, 19.773309, 0), V(2.010642, 19.666225, 0), V(2.052902, 19.556293, 0), V(2.079776, 19.444638, 0), V(2.082989, 19.369413, 0), V(2.084592, 19.331874, 0)], [4, 1, 1, 1, 1, 1, 1, 1, 1, 1, 1, 1, 4], [0, 1.126551995, 2.229861531, 3.322496069, 4.422827045, 5.497949776, 6.520418829, 7.504194933, 8.464779191, 9.395175895, 10.286118409, 11.144725379, 12], False, 3, [1, 1, 1, 1, 1, 1, 1, 1, 1, 1, 1, 1, 1, 1, 1], False), False)  # 37
sketch2.addGeometry(Part.BSplineCurve([V(-0.069254, 19.308737, 0), V(-0.060478, 19.34745, 0), V(-0.043298, 19.42323, 0), V(-0.008569, 19.531485, 0), V(0.030562, 19.632725, 0), V(0.07577, 19.726175, 0), V(0.128158, 19.811109, 0), V(0.18487, 19.889164, 0), V(0.248341, 19.958713, 0), V(0.317179, 20.020717, 0), V(0.391036, 20.074281, 0), V(0.467725, 20.121797, 0), V(0.547859, 20.161636, 0), V(0.630932, 20.195015, 0), V(0.717372, 20.22028, 0), V(0.807106, 20.237345, 0), V(0.899608, 20.249332, 0), V(0.962524, 20.25047, 0), V(0.994348, 20.251045, 0)], [4, 1, 1, 1, 1, 1, 1, 1, 1, 1, 1, 1, 1, 1, 1, 1, 4], [0, 1.225194122, 2.398296627, 3.506547767, 4.574817873, 5.598350885, 6.584148364, 7.54966307, 8.500147383, 9.439776218, 10.36307994, 11.282851771, 12.199447467, 13.124300948, 14.058371117, 15.017907346, 16], False, 3, [1, 1, 1, 1, 1, 1, 1, 1, 1, 1, 1, 1, 1, 1, 1, 1, 1, 1, 1], False), False)  # 38
add_polygon(sketch2, [(4.597413, 20.251045), (4.420029, 20.251045), (2.53331, 17.468994), (4.148695, 17.468994), (4.148695, 16.661301), (4.597413, 16.661301), (4.597413, 17.468994), (5.001259, 17.468994), (5.001259, 17.87284), (4.597413, 17.87284)])  # lines 39-48
add_polygon(sketch2, [(4.148695, 17.87284), (3.257569, 17.87284), (4.148695, 19.264567)])  # lines 49-51
sketch2.addConstraint([
    Sketcher.Constraint("Block", 13),
    Sketcher.Constraint("Block", 14),
    Sketcher.Constraint("Block", 15),
    Sketcher.Constraint("Block", 16),
    Sketcher.Constraint("Block", 17),
    Sketcher.Constraint("Block", 18),
    Sketcher.Constraint("Block", 19),
    Sketcher.Constraint("Block", 20),
    Sketcher.Constraint("Block", 21),
    Sketcher.Constraint("Block", 23),
    Sketcher.Constraint("Block", 24),
    Sketcher.Constraint("Block", 25),
    Sketcher.Constraint("Block", 27),
    Sketcher.Constraint("Block", 28),
    Sketcher.Constraint("Block", 29),
    Sketcher.Constraint("Block", 30),
    Sketcher.Constraint("Block", 32),
    Sketcher.Constraint("Block", 33),
    Sketcher.Constraint("Block", 34),
    Sketcher.Constraint("Block", 35),
    Sketcher.Constraint("Block", 36),
    Sketcher.Constraint("Block", 37),
    Sketcher.Constraint("Block", 38),
    Sketcher.Constraint("Coincident", 22, 2, 23, 2),
    Sketcher.Constraint("Coincident", 25, 1, 26, 1),
    Sketcher.Constraint("Coincident", 26, 2, 27, 2),
    Sketcher.Constraint("Coincident", 30, 1, 31, 1),
    Sketcher.Constraint("Coincident", 31, 2, 32, 2),
    Sketcher.Constraint("Coincident", 38, 1, 22, 1),
    Sketcher.Constraint("Horizontal", 0),
    Sketcher.Constraint("Horizontal", 2),
    Sketcher.Constraint("Vertical", 3),
    Sketcher.Constraint("Horizontal", 4),
    Sketcher.Constraint("Vertical", 5),
    Sketcher.Constraint("Horizontal", 6),
    Sketcher.Constraint("Vertical", 7),
    Sketcher.Constraint("Horizontal", 8),
    Sketcher.Constraint("Vertical", 9),
    Sketcher.Constraint("Horizontal", 10),
    Sketcher.Constraint("Vertical", 12),
    Sketcher.Constraint("Horizontal", 39),
    Sketcher.Constraint("Horizontal", 41),
    Sketcher.Constraint("Vertical", 42),
    Sketcher.Constraint("Horizontal", 43),
    Sketcher.Constraint("Vertical", 44),
    Sketcher.Constraint("Horizontal", 45),
    Sketcher.Constraint("Vertical", 46),
    Sketcher.Constraint("Horizontal", 47),
    Sketcher.Constraint("Vertical", 48),
    Sketcher.Constraint("Horizontal", 49),
    Sketcher.Constraint("Vertical", 51),
    Sketcher.Constraint("DistanceX", -1, 1, 45, 2, Q("0.1969 in")),
    Sketcher.Constraint("DistanceY", -1, 1, 3, 2, 16.661301),
    Sketcher.Constraint("DistanceY", -1, 1, 42, 2, 16.661301),
    Sketcher.Constraint("DistanceX", 31, 2, 39, 2, 4.623898),
    Sketcher.Constraint("DistanceX", 26, 2, 40, 2, 1.75),
    Sketcher.Constraint("DistanceX", 0, 2, 0, 1, 0.177384),
    Sketcher.Constraint("DistanceX", 2, 1, 2, 2, 1.615385),
    Sketcher.Constraint("DistanceX", 4, 1, 4, 2, 0.448718),
    Sketcher.Constraint("DistanceX", 6, 1, 6, 2, 0.403846),
    Sketcher.Constraint("DistanceX", 8, 2, 8, 1, 0.403846),
    Sketcher.Constraint("DistanceX", 10, 2, 10, 1, 0.891126),
    Sketcher.Constraint("DistanceX", 39, 2, 39, 1, 0.177384),
    Sketcher.Constraint("DistanceX", 41, 1, 41, 2, 1.615385),
    Sketcher.Constraint("DistanceX", 43, 1, 43, 2, 0.448718),
    Sketcher.Constraint("DistanceX", 49, 2, 49, 1, 0.891126),
    Sketcher.Constraint("DistanceY", 3, 2, 3, 1, 0.807692),
    Sketcher.Constraint("DistanceY", 5, 1, 5, 2, 0.807692),
    Sketcher.Constraint("DistanceY", 7, 1, 7, 2, 0.403846),
    Sketcher.Constraint("DistanceY", 9, 1, 9, 2, 2.378205),
    Sketcher.Constraint("DistanceY", 12, 2, 12, 1, 1.391727),
    Sketcher.Constraint("DistanceY", 42, 2, 42, 1, 0.807692),
    Sketcher.Constraint("DistanceY", 44, 1, 44, 2, 0.807692),
    Sketcher.Constraint("DistanceY", 46, 1, 46, 2, 0.403846),
    Sketcher.Constraint("DistanceY", 48, 1, 48, 2, 2.378205),
    Sketcher.Constraint("DistanceY", 51, 2, 51, 1, 1.391727),
    Sketcher.Constraint("DistanceX", 0, 2, -1, 1, 3.79151),
    Sketcher.Constraint("DistanceX", 10, 2, -1, 1, 4.95397),
    Sketcher.Constraint("DistanceY", -1, 1, 10, 2, 17.87284),
    Sketcher.Constraint("DistanceX", -1, 1, 49, 2, 3.257569),
    Sketcher.Constraint("DistanceY", -1, 1, 49, 2, 17.87284),
])
pocket1 = body.newObject("PartDesign::Pocket", "Pocket")
pocket1.Profile = sketch2
pocket1.setExpression("Length", "Params.pocket1_length")

doc.recompute()
